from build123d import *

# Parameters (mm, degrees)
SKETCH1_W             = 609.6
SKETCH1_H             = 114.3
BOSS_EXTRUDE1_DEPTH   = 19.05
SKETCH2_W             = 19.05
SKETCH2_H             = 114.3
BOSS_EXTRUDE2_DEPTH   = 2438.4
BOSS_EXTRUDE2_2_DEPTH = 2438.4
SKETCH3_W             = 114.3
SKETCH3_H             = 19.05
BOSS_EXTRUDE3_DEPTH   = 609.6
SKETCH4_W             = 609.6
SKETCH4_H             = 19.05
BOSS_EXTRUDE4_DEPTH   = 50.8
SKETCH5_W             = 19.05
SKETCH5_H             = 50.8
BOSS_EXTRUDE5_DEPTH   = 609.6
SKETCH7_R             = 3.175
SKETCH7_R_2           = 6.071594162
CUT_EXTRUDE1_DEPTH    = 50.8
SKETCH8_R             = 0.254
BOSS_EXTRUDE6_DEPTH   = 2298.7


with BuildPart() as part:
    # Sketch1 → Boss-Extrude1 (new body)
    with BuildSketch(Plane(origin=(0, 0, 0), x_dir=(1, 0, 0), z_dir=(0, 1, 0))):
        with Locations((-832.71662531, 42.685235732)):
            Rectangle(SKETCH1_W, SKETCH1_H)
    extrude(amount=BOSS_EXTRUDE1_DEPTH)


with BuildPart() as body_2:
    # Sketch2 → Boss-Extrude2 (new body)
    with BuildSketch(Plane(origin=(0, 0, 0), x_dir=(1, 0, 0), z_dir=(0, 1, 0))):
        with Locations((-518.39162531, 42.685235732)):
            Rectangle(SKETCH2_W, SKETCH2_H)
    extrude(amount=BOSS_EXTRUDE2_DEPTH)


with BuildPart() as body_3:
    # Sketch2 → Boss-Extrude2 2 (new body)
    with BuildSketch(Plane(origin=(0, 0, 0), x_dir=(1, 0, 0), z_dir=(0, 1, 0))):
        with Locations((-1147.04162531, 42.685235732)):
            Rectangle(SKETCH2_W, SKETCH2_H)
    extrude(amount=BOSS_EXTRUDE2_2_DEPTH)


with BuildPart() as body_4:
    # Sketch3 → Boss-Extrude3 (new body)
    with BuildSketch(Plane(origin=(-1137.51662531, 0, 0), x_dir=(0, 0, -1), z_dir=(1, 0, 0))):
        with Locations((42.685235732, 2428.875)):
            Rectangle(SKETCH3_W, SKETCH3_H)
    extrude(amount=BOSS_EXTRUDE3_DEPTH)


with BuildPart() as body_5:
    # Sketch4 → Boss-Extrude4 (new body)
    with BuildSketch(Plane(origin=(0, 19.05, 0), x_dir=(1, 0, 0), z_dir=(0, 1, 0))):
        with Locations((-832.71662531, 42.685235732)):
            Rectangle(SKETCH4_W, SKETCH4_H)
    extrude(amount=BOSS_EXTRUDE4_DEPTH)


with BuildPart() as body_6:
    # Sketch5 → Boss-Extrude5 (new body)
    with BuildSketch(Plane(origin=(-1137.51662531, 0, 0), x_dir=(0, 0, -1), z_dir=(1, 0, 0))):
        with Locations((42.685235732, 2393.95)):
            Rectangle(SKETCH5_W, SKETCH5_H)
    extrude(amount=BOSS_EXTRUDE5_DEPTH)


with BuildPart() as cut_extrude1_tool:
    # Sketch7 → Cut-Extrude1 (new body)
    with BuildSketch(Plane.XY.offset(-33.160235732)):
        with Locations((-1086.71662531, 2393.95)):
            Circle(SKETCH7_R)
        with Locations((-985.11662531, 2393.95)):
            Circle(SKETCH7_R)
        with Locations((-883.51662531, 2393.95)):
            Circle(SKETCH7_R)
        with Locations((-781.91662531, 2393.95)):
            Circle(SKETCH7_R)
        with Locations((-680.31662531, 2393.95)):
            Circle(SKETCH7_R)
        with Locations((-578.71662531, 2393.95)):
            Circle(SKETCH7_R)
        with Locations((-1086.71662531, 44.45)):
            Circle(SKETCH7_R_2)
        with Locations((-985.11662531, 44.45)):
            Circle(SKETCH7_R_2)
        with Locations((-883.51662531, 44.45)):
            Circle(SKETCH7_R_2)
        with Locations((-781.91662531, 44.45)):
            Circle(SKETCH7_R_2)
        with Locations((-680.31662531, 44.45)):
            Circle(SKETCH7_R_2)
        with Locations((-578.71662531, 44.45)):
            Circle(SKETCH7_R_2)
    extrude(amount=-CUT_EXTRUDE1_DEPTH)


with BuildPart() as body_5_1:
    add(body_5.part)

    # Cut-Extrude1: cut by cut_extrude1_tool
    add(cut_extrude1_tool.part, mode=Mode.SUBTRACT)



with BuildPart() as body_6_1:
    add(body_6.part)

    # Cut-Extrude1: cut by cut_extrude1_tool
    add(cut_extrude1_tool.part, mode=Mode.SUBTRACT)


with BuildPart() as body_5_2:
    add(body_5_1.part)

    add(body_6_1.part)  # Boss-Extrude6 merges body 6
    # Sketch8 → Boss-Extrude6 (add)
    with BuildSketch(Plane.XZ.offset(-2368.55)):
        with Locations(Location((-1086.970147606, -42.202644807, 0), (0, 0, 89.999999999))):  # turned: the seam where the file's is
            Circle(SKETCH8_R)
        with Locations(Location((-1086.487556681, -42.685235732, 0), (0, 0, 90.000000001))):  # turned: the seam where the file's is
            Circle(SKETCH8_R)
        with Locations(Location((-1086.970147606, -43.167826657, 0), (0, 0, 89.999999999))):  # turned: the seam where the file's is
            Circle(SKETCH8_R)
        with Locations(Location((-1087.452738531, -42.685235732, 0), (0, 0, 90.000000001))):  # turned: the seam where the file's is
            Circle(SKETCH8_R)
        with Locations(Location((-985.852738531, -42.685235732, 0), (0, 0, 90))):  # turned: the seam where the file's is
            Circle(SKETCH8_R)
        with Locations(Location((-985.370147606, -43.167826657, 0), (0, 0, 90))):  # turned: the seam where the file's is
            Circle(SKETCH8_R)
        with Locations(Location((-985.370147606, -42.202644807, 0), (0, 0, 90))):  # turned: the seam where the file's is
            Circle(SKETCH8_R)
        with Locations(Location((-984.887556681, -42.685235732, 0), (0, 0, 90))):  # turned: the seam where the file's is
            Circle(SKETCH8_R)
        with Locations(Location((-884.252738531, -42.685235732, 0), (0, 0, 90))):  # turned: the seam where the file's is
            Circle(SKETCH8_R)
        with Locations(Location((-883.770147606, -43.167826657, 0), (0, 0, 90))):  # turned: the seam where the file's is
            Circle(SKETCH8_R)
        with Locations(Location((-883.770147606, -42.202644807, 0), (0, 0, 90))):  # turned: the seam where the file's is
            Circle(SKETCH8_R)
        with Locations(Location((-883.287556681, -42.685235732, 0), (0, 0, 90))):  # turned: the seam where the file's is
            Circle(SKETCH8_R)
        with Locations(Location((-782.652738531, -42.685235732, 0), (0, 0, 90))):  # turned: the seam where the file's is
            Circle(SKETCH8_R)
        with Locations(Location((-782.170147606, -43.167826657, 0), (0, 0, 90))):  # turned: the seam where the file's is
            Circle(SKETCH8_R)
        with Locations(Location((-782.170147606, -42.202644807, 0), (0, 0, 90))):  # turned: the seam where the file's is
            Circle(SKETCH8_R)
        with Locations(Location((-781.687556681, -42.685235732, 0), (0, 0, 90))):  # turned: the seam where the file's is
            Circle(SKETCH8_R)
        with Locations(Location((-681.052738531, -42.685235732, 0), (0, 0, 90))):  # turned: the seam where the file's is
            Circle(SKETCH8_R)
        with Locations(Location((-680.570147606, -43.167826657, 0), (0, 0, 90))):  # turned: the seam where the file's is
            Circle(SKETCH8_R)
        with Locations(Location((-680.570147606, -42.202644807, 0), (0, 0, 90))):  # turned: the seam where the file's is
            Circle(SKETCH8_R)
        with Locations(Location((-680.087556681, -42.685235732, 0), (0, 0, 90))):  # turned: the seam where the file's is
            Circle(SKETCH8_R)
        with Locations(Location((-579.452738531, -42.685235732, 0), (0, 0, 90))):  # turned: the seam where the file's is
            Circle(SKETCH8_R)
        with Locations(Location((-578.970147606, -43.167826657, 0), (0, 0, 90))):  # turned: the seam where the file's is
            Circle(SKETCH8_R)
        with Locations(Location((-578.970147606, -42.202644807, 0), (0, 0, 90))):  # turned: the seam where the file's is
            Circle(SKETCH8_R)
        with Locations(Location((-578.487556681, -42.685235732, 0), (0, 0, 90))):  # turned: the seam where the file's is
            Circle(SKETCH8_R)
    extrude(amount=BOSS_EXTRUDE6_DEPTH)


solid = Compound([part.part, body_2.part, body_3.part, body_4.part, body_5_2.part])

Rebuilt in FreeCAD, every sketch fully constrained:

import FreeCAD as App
import Part
import Sketcher
Q = App.Units.Quantity


def add_polygon(sketch, points):
    """Adds a closed chain of lines whose ends are joined by coincident constraints."""
    first, n = sketch.GeometryCount, len(points)
    for a, b in zip(points, points[1:] + points[:1]):
        sketch.addGeometry(Part.LineSegment(App.Vector(*a, 0), App.Vector(*b, 0)), False)
    for i in range(n):
        sketch.addConstraint(Sketcher.Constraint("Coincident", first + i, 2, first + (i + 1) % n, 1))

doc = App.newDocument("Part")
body = doc.addObject("PartDesign::Body", "Body")

# Sketch on XZ plane
sketch1 = body.newObject("Sketcher::SketchObject", "Sketch")
sketch1.AttachmentSupport = (doc.getObject("XZ_Plane"), [""])
sketch1.MapMode = "FlatFace"
add_polygon(sketch1, [(-1138, -100), (-1138, 14), (-528, 14), (-528, -100)])  # lines 0-3
sketch1.addConstraint(Sketcher.Constraint("Vertical", 0))
sketch1.addConstraint(Sketcher.Constraint("Horizontal", 1))
sketch1.addConstraint(Sketcher.Constraint("Vertical", 2))
sketch1.addConstraint(Sketcher.Constraint("Horizontal", 3))
sketch1.addConstraint(Sketcher.Constraint("DistanceX", 1, 1, 1, 2, Q("24 in")))
sketch1.addConstraint(Sketcher.Constraint("DistanceY", 0, 1, 0, 2, Q("4.5 in")))
sketch1.addConstraint(Sketcher.Constraint("DistanceX", 0, 2, -1, 1, Q("1137.516625 mm")))
sketch1.addConstraint(Sketcher.Constraint("DistanceY", -1, 1, 0, 2, Q("14.464764 mm")))
pad1 = body.newObject("PartDesign::Pad", "Pad")
pad1.Profile = sketch1
pad1.Length = Q("0.75 in")
pad1.Reversed = True
body2 = doc.addObject("PartDesign::Body", "Body001")

# Sketch on XZ plane
sketch2 = body2.newObject("Sketcher::SketchObject", "Sketch001")
sketch2.AttachmentSupport = (doc.getObject("XZ_Plane001"), [""])
sketch2.MapMode = "FlatFace"
add_polygon(sketch2, [(-528, -100), (-528, 14), (-509, 14), (-509, -100)])  # lines 0-3
sketch2.addConstraint(Sketcher.Constraint("Vertical", 0))
sketch2.addConstraint(Sketcher.Constraint("Horizontal", 1))
sketch2.addConstraint(Sketcher.Constraint("Vertical", 2))
sketch2.addConstraint(Sketcher.Constraint("Horizontal", 3))
sketch2.addConstraint(Sketcher.Constraint("DistanceY", 0, 1, 0, 2, Q("4.5 in")))
sketch2.addConstraint(Sketcher.Constraint("DistanceX", 1, 1, 1, 2, Q("0.75 in")))
sketch2.addConstraint(Sketcher.Constraint("DistanceX", 0, 2, -1, 1, Q("527.916625 mm")))
sketch2.addConstraint(Sketcher.Constraint("DistanceY", -1, 1, 0, 2, Q("14.464764 mm")))
pad2 = body2.newObject("PartDesign::Pad", "Pad001")
pad2.Profile = sketch2
pad2.Length = Q("96 in")
pad2.Reversed = True
body3 = doc.addObject("PartDesign::Body", "Body002")

# Sketch on XZ plane
sketch3 = body3.newObject("Sketcher::SketchObject", "Sketch002")
sketch3.AttachmentSupport = (doc.getObject("XZ_Plane002"), [""])
sketch3.MapMode = "FlatFace"
add_polygon(sketch3, [(-1157, -100), (-1157, 14), (-1138, 14), (-1138, -100)])  # lines 0-3
sketch3.addConstraint(Sketcher.Constraint("Vertical", 0))
sketch3.addConstraint(Sketcher.Constraint("Horizontal", 1))
sketch3.addConstraint(Sketcher.Constraint("Vertical", 2))
sketch3.addConstraint(Sketcher.Constraint("Horizontal", 3))
sketch3.addConstraint(Sketcher.Constraint("DistanceY", 0, 1, 0, 2, Q("4.5 in")))
sketch3.addConstraint(Sketcher.Constraint("DistanceX", 1, 1, 1, 2, Q("0.75 in")))
sketch3.addConstraint(Sketcher.Constraint("DistanceX", 0, 2, -1, 1, Q("1156.566625 mm")))
sketch3.addConstraint(Sketcher.Constraint("DistanceY", -1, 1, 0, 2, Q("14.464764 mm")))
pad3 = body3.newObject("PartDesign::Pad", "Pad002")
pad3.Profile = sketch3
pad3.Length = Q("96 in")
pad3.Reversed = True
body4 = doc.addObject("PartDesign::Body", "Body003")

# Sketch on YZ plane
sketch4 = body4.newObject("Sketcher::SketchObject", "Sketch003")
sketch4.AttachmentSupport = (doc.getObject("YZ_Plane003"), [""])
sketch4.MapMode = "FlatFace"
sketch4.AttachmentOffset = App.Placement(App.Vector(0, 0, -1137.516625), App.Rotation())
add_polygon(sketch4, [(2438, 14), (2419, 14), (2419, -100), (2438, -100)])  # lines 0-3
sketch4.addConstraint(Sketcher.Constraint("Horizontal", 0))
sketch4.addConstraint(Sketcher.Constraint("Vertical", 1))
sketch4.addConstraint(Sketcher.Constraint("Horizontal", 2))
sketch4.addConstraint(Sketcher.Constraint("Vertical", 3))
sketch4.addConstraint(Sketcher.Constraint("DistanceY", 1, 2, 1, 1, Q("4.5 in")))
sketch4.addConstraint(Sketcher.Constraint("DistanceX", -1, 1, 2, 2, Q("96 in")))
sketch4.addConstraint(Sketcher.Constraint("DistanceX", 0, 2, 0, 1, Q("0.75 in")))
sketch4.addConstraint(Sketcher.Constraint("DistanceY", -1, 1, 0, 2, Q("14.464764 mm")))
pad4 = body4.newObject("PartDesign::Pad", "Pad003")
pad4.Profile = sketch4
pad4.Length = Q("24 in")
body5 = doc.addObject("PartDesign::Body", "Body004")

# Sketch on XZ plane
sketch5 = body5.newObject("Sketcher::SketchObject", "Sketch004")
sketch5.AttachmentSupport = (doc.getObject("XZ_Plane004"), [""])
sketch5.MapMode = "FlatFace"
sketch5.AttachmentOffset = App.Placement(App.Vector(0, 0, -0.75 * 25.4), App.Rotation())
add_polygon(sketch5, [(-1138, -52), (-1138, -33), (-528, -33), (-528, -52)])  # lines 0-3
sketch5.addConstraint(Sketcher.Constraint("Vertical", 0))
sketch5.addConstraint(Sketcher.Constraint("Horizontal", 1))
sketch5.addConstraint(Sketcher.Constraint("Vertical", 2))
sketch5.addConstraint(Sketcher.Constraint("Horizontal", 3))
sketch5.addConstraint(Sketcher.Constraint("DistanceX", 1, 1, 1, 2, Q("24 in")))
sketch5.addConstraint(Sketcher.Constraint("DistanceY", 0, 1, 0, 2, Q("0.75 in")))
sketch5.addConstraint(Sketcher.Constraint("DistanceX", 0, 2, -1, 1, Q("1137.516625 mm")))
sketch5.addConstraint(Sketcher.Constraint("DistanceY", 0, 2, -1, 1, Q("33.160236 mm")))
pad5 = body5.newObject("PartDesign::Pad", "Pad004")
pad5.Profile = sketch5
pad5.Length = Q("2 in")
pad5.Reversed = True
body6 = doc.addObject("PartDesign::Body", "Body005")

# Sketch on YZ plane
sketch6 = body6.newObject("Sketcher::SketchObject", "Sketch005")
sketch6.AttachmentSupport = (doc.getObject("YZ_Plane005"), [""])
sketch6.MapMode = "FlatFace"
sketch6.AttachmentOffset = App.Placement(App.Vector(0, 0, -1137.516625), App.Rotation())
add_polygon(sketch6, [(2419, -33), (2369, -33), (2369, -52), (2419, -52)])  # lines 0-3
sketch6.addConstraint(Sketcher.Constraint("Horizontal", 0))
sketch6.addConstraint(Sketcher.Constraint("Vertical", 1))
sketch6.addConstraint(Sketcher.Constraint("Horizontal", 2))
sketch6.addConstraint(Sketcher.Constraint("Vertical", 3))
sketch6.addConstraint(Sketcher.Constraint("DistanceX", 0, 2, 0, 1, Q("2 in")))
sketch6.addConstraint(Sketcher.Constraint("DistanceY", 1, 2, 1, 1, Q("0.75 in")))
sketch6.addConstraint(Sketcher.Constraint("DistanceX", -1, 1, 0, 2, Q("93.25 in")))
sketch6.addConstraint(Sketcher.Constraint("DistanceY", 0, 2, -1, 1, Q("33.160236 mm")))
pad6 = body6.newObject("PartDesign::Pad", "Pad005")
pad6.Profile = sketch6
pad6.Length = Q("24 in")
body7 = doc.addObject("PartDesign::Body", "Body006")
body7.AllowCompound = True

# Sketch on XY plane
sketch7 = body7.newObject("Sketcher::SketchObject", "Sketch006")
sketch7.AttachmentSupport = (doc.getObject("XY_Plane006"), [""])
sketch7.MapMode = "FlatFace"
sketch7.AttachmentOffset = App.Placement(App.Vector(0, 0, -33.160236), App.Rotation())
sketch7.addGeometry(Part.Circle(App.Vector(-1086.7, 2393.9, 0), App.Vector(0, 0, 1), 3.2), False)
sketch7.addGeometry(Part.Circle(App.Vector(-985.1, 2393.9, 0), App.Vector(0, 0, 1), 3.2), False)
sketch7.addGeometry(Part.Circle(App.Vector(-883.5, 2393.9, 0), App.Vector(0, 0, 1), 3.2), False)
sketch7.addGeometry(Part.Circle(App.Vector(-781.9, 2393.9, 0), App.Vector(0, 0, 1), 3.2), False)
sketch7.addGeometry(Part.Circle(App.Vector(-680.3, 2393.9, 0), App.Vector(0, 0, 1), 3.2), False)
sketch7.addGeometry(Part.Circle(App.Vector(-578.7, 2393.9, 0), App.Vector(0, 0, 1), 3.2), False)
sketch7.addGeometry(Part.Circle(App.Vector(-1086.7, 44.5, 0), App.Vector(0, 0, 1), 6.1), False)
sketch7.addGeometry(Part.Circle(App.Vector(-985.1, 44.5, 0), App.Vector(0, 0, 1), 6.1), False)
sketch7.addGeometry(Part.Circle(App.Vector(-883.5, 44.5, 0), App.Vector(0, 0, 1), 6.1), False)
sketch7.addGeometry(Part.Circle(App.Vector(-781.9, 44.5, 0), App.Vector(0, 0, 1), 6.1), False)
sketch7.addGeometry(Part.Circle(App.Vector(-680.3, 44.5, 0), App.Vector(0, 0, 1), 6.1), False)
sketch7.addGeometry(Part.Circle(App.Vector(-578.7, 44.5, 0), App.Vector(0, 0, 1), 6.1), False)
sketch7.addConstraint(Sketcher.Constraint("Equal", 0, 1))
sketch7.addConstraint(Sketcher.Constraint("Equal", 1, 2))
sketch7.addConstraint(Sketcher.Constraint("Equal", 2, 3))
sketch7.addConstraint(Sketcher.Constraint("Equal", 3, 4))
sketch7.addConstraint(Sketcher.Constraint("Equal", 4, 5))
sketch7.addConstraint(Sketcher.Constraint("Equal", 6, 7))
sketch7.addConstraint(Sketcher.Constraint("Equal", 7, 8))
sketch7.addConstraint(Sketcher.Constraint("Equal", 8, 9))
sketch7.addConstraint(Sketcher.Constraint("Equal", 9, 10))
sketch7.addConstraint(Sketcher.Constraint("Equal", 10, 11))
sketch7.addConstraint(Sketcher.Constraint("Horizontal", 0, 3, 1, 3))
sketch7.addConstraint(Sketcher.Constraint("Horizontal", 1, 3, 2, 3))
sketch7.addConstraint(Sketcher.Constraint("Horizontal", 2, 3, 3, 3))
sketch7.addConstraint(Sketcher.Constraint("Horizontal", 3, 3, 4, 3))
sketch7.addConstraint(Sketcher.Constraint("Horizontal", 4, 3, 5, 3))
sketch7.addConstraint(Sketcher.Constraint("Horizontal", 6, 3, 7, 3))
sketch7.addConstraint(Sketcher.Constraint("Horizontal", 7, 3, 8, 3))
sketch7.addConstraint(Sketcher.Constraint("Horizontal", 8, 3, 9, 3))
sketch7.addConstraint(Sketcher.Constraint("Horizontal", 9, 3, 10, 3))
sketch7.addConstraint(Sketcher.Constraint("Horizontal", 10, 3, 11, 3))
sketch7.addConstraint(Sketcher.Constraint("Vertical", 0, 3, 6, 3))
sketch7.addConstraint(Sketcher.Constraint("Vertical", 1, 3, 7, 3))
sketch7.addConstraint(Sketcher.Constraint("Vertical", 2, 3, 8, 3))
sketch7.addConstraint(Sketcher.Constraint("Vertical", 3, 3, 9, 3))
sketch7.addConstraint(Sketcher.Constraint("Vertical", 4, 3, 10, 3))
sketch7.addConstraint(Sketcher.Constraint("Vertical", 5, 3, 11, 3))
sketch7.addConstraint(Sketcher.Constraint("Diameter", 0, Q("0.25 in")))
sketch7.addConstraint(Sketcher.Constraint("DistanceX", 0, 3, 1, 3, Q("4 in")))
sketch7.addConstraint(Sketcher.Constraint("DistanceX", 1, 3, 2, 3, Q("4 in")))
sketch7.addConstraint(Sketcher.Constraint("DistanceX", 2, 3, 3, 3, Q("4 in")))
sketch7.addConstraint(Sketcher.Constraint("DistanceX", 3, 3, 4, 3, Q("4 in")))
sketch7.addConstraint(Sketcher.Constraint("DistanceX", 4, 3, 5, 3, Q("4 in")))
sketch7.addConstraint(Sketcher.Constraint("DistanceY", 6, 3, 0, 3, Q("92.5 in")))
sketch7.addConstraint(Sketcher.Constraint("DistanceY", -1, 1, 0, 3, Q("94.25 in")))
sketch7.addConstraint(Sketcher.Constraint("Diameter", 6, Q("12.143188 mm")))
sketch7.addConstraint(Sketcher.Constraint("DistanceX", 0, 3, -1, 1, Q("1086.716625 mm")))
pad7 = body7.newObject("PartDesign::Pad", "Pad006")
pad7.Profile = sketch7
pad7.Length = Q("2 in")
pad7.Reversed = True
doc.recompute()

body8 = doc.addObject("PartDesign::Body", "Body007")
body8.BaseFeature = body7
boolean = body5.newObject("PartDesign::Boolean", "Boolean")
boolean.Type = "Cut"
boolean.addObjects([body8])
doc.recompute()

boolean2 = body6.newObject("PartDesign::Boolean", "Boolean001")
boolean2.Type = "Cut"
boolean2.addObjects([body7])
body5.AllowCompound = True
doc.recompute()

boolean3 = body5.newObject("PartDesign::Boolean", "Boolean002")
boolean3.Type = "Fuse"
boolean3.addObjects([body6])

# Sketch on XZ plane
sketch8 = body5.newObject("Sketcher::SketchObject", "Sketch007")
sketch8.AttachmentSupport = (doc.getObject("XZ_Plane004"), [""])
sketch8.MapMode = "FlatFace"
sketch8.AttachmentOffset = App.Placement(App.Vector(0, 0, -93.25 * 25.4), App.Rotation())
sketch8.addGeometry(Part.Circle(App.Vector(-1086.97, -42.2, 0), App.Vector(0, 0, 1), 0.25), False)
sketch8.addGeometry(Part.Circle(App.Vector(-1086.49, -42.69, 0), App.Vector(0, 0, 1), 0.25), False)
sketch8.addGeometry(Part.Circle(App.Vector(-1086.97, -43.17, 0), App.Vector(0, 0, 1), 0.25), False)
sketch8.addGeometry(Part.Circle(App.Vector(-1087.45, -42.69, 0), App.Vector(0, 0, 1), 0.25), False)
sketch8.addGeometry(Part.Circle(App.Vector(-985.85, -42.69, 0), App.Vector(0, 0, 1), 0.25), False)
sketch8.addGeometry(Part.Circle(App.Vector(-985.37, -43.17, 0), App.Vector(0, 0, 1), 0.25), False)
sketch8.addGeometry(Part.Circle(App.Vector(-985.37, -42.2, 0), App.Vector(0, 0, 1), 0.25), False)
sketch8.addGeometry(Part.Circle(App.Vector(-984.89, -42.69, 0), App.Vector(0, 0, 1), 0.25), False)
sketch8.addGeometry(Part.Circle(App.Vector(-884.25, -42.69, 0), App.Vector(0, 0, 1), 0.25), False)
sketch8.addGeometry(Part.Circle(App.Vector(-883.77, -43.17, 0), App.Vector(0, 0, 1), 0.25), False)
sketch8.addGeometry(Part.Circle(App.Vector(-883.77, -42.2, 0), App.Vector(0, 0, 1), 0.25), False)
sketch8.addGeometry(Part.Circle(App.Vector(-883.29, -42.69, 0), App.Vector(0, 0, 1), 0.25), False)
sketch8.addGeometry(Part.Circle(App.Vector(-782.65, -42.69, 0), App.Vector(0, 0, 1), 0.25), False)
sketch8.addGeometry(Part.Circle(App.Vector(-782.17, -43.17, 0), App.Vector(0, 0, 1), 0.25), False)
sketch8.addGeometry(Part.Circle(App.Vector(-782.17, -42.2, 0), App.Vector(0, 0, 1), 0.25), False)
sketch8.addGeometry(Part.Circle(App.Vector(-781.69, -42.69, 0), App.Vector(0, 0, 1), 0.25), False)
sketch8.addGeometry(Part.Circle(App.Vector(-681.05, -42.69, 0), App.Vector(0, 0, 1), 0.25), False)
sketch8.addGeometry(Part.Circle(App.Vector(-680.57, -43.17, 0), App.Vector(0, 0, 1), 0.25), False)
sketch8.addGeometry(Part.Circle(App.Vector(-680.57, -42.2, 0), App.Vector(0, 0, 1), 0.25), False)
sketch8.addGeometry(Part.Circle(App.Vector(-680.09, -42.69, 0), App.Vector(0, 0, 1), 0.25), False)
sketch8.addGeometry(Part.Circle(App.Vector(-579.45, -42.69, 0), App.Vector(0, 0, 1), 0.25), False)
sketch8.addGeometry(Part.Circle(App.Vector(-578.97, -43.17, 0), App.Vector(0, 0, 1), 0.25), False)
sketch8.addGeometry(Part.Circle(App.Vector(-578.97, -42.2, 0), App.Vector(0, 0, 1), 0.25), False)
sketch8.addGeometry(Part.Circle(App.Vector(-578.49, -42.69, 0), App.Vector(0, 0, 1), 0.25), False)
sketch8.addConstraint(Sketcher.Constraint("Equal", 0, 1))
sketch8.addConstraint(Sketcher.Constraint("Equal", 1, 2))
sketch8.addConstraint(Sketcher.Constraint("Equal", 2, 3))
sketch8.addConstraint(Sketcher.Constraint("Equal", 3, 4))
sketch8.addConstraint(Sketcher.Constraint("Equal", 4, 5))
sketch8.addConstraint(Sketcher.Constraint("Equal", 5, 6))
sketch8.addConstraint(Sketcher.Constraint("Equal", 6, 7))
sketch8.addConstraint(Sketcher.Constraint("Equal", 7, 8))
sketch8.addConstraint(Sketcher.Constraint("Equal", 8, 9))
sketch8.addConstraint(Sketcher.Constraint("Equal", 9, 10))
sketch8.addConstraint(Sketcher.Constraint("Equal", 10, 11))
sketch8.addConstraint(Sketcher.Constraint("Equal", 11, 12))
sketch8.addConstraint(Sketcher.Constraint("Equal", 12, 13))
sketch8.addConstraint(Sketcher.Constraint("Equal", 13, 14))
sketch8.addConstraint(Sketcher.Constraint("Equal", 14, 15))
sketch8.addConstraint(Sketcher.Constraint("Equal", 15, 16))
sketch8.addConstraint(Sketcher.Constraint("Equal", 16, 17))
sketch8.addConstraint(Sketcher.Constraint("Equal", 17, 18))
sketch8.addConstraint(Sketcher.Constraint("Equal", 18, 19))
sketch8.addConstraint(Sketcher.Constraint("Equal", 19, 20))
sketch8.addConstraint(Sketcher.Constraint("Equal", 20, 21))
sketch8.addConstraint(Sketcher.Constraint("Equal", 21, 22))
sketch8.addConstraint(Sketcher.Constraint("Equal", 22, 23))
sketch8.addConstraint(Sketcher.Constraint("Horizontal", 1, 3, 3, 3))
sketch8.addConstraint(Sketcher.Constraint("Horizontal", 3, 3, 4, 3))
sketch8.addConstraint(Sketcher.Constraint("Horizontal", 2, 3, 5, 3))
sketch8.addConstraint(Sketcher.Constraint("Horizontal", 0, 3, 6, 3))
sketch8.addConstraint(Sketcher.Constraint("Horizontal", 4, 3, 7, 3))
sketch8.addConstraint(Sketcher.Constraint("Horizontal", 7, 3, 8, 3))
sketch8.addConstraint(Sketcher.Constraint("Horizontal", 5, 3, 9, 3))
sketch8.addConstraint(Sketcher.Constraint("Horizontal", 6, 3, 10, 3))
sketch8.addConstraint(Sketcher.Constraint("Horizontal", 8, 3, 11, 3))
sketch8.addConstraint(Sketcher.Constraint("Horizontal", 11, 3, 12, 3))
sketch8.addConstraint(Sketcher.Constraint("Horizontal", 9, 3, 13, 3))
sketch8.addConstraint(Sketcher.Constraint("Horizontal", 10, 3, 14, 3))
sketch8.addConstraint(Sketcher.Constraint("Horizontal", 12, 3, 15, 3))
sketch8.addConstraint(Sketcher.Constraint("Horizontal", 15, 3, 16, 3))
sketch8.addConstraint(Sketcher.Constraint("Horizontal", 13, 3, 17, 3))
sketch8.addConstraint(Sketcher.Constraint("Horizontal", 14, 3, 18, 3))
sketch8.addConstraint(Sketcher.Constraint("Horizontal", 16, 3, 19, 3))
sketch8.addConstraint(Sketcher.Constraint("Horizontal", 19, 3, 20, 3))
sketch8.addConstraint(Sketcher.Constraint("Horizontal", 17, 3, 21, 3))
sketch8.addConstraint(Sketcher.Constraint("Horizontal", 18, 3, 22, 3))
sketch8.addConstraint(Sketcher.Constraint("Horizontal", 20, 3, 23, 3))
sketch8.addConstraint(Sketcher.Constraint("Vertical", 0, 3, 2, 3))
sketch8.addConstraint(Sketcher.Constraint("Vertical", 5, 3, 6, 3))
sketch8.addConstraint(Sketcher.Constraint("Vertical", 9, 3, 10, 3))
sketch8.addConstraint(Sketcher.Constraint("Vertical", 13, 3, 14, 3))
sketch8.addConstraint(Sketcher.Constraint("Vertical", 17, 3, 18, 3))
sketch8.addConstraint(Sketcher.Constraint("Vertical", 21, 3, 22, 3))
sketch8.addConstraint(Sketcher.Constraint("Diameter", 0, Q("0.02 in")))
sketch8.addConstraint(Sketcher.Constraint("DistanceX", 3, 3, 4, 3, Q("4 in")))
sketch8.addConstraint(Sketcher.Constraint("DistanceX", 2, 3, 5, 3, Q("4 in")))
sketch8.addConstraint(Sketcher.Constraint("DistanceX", 1, 3, 7, 3, Q("4 in")))
sketch8.addConstraint(Sketcher.Constraint("DistanceX", 4, 3, 8, 3, Q("4 in")))
sketch8.addConstraint(Sketcher.Constraint("DistanceX", 5, 3, 9, 3, Q("4 in")))
sketch8.addConstraint(Sketcher.Constraint("DistanceX", 7, 3, 11, 3, Q("4 in")))
sketch8.addConstraint(Sketcher.Constraint("DistanceX", 8, 3, 12, 3, Q("4 in")))
sketch8.addConstraint(Sketcher.Constraint("DistanceX", 9, 3, 13, 3, Q("4 in")))
sketch8.addConstraint(Sketcher.Constraint("DistanceX", 11, 3, 15, 3, Q("4 in")))
sketch8.addConstraint(Sketcher.Constraint("DistanceX", 12, 3, 16, 3, Q("4 in")))
sketch8.addConstraint(Sketcher.Constraint("DistanceX", 13, 3, 17, 3, Q("4 in")))
sketch8.addConstraint(Sketcher.Constraint("DistanceX", 15, 3, 19, 3, Q("4 in")))
sketch8.addConstraint(Sketcher.Constraint("DistanceX", 16, 3, 20, 3, Q("4 in")))
sketch8.addConstraint(Sketcher.Constraint("DistanceX", 17, 3, 21, 3, Q("4 in")))
sketch8.addConstraint(Sketcher.Constraint("DistanceX", 19, 3, 23, 3, Q("4 in")))
sketch8.addConstraint(Sketcher.Constraint("DistanceX", 3, 3, -1, 1, Q("42.8130999 in")))
sketch8.addConstraint(Sketcher.Constraint("DistanceX", 0, 3, 1, 3, Q("0.482591 mm")))
sketch8.addConstraint(Sketcher.Constraint("DistanceY", 1, 3, 0, 3, Q("0.482591 mm")))
sketch8.addConstraint(Sketcher.Constraint("DistanceY", 2, 3, 1, 3, Q("0.482591 mm")))
sketch8.addConstraint(Sketcher.Constraint("DistanceX", 3, 3, 2, 3, Q("0.482591 mm")))
sketch8.addConstraint(Sketcher.Constraint("DistanceY", 0, 3, -1, 1, Q("42.202645 mm")))
pad8 = body5.newObject("PartDesign::Pad", "Pad007")
pad8.Profile = sketch8
pad8.Length = Q("90.5 in")

doc.recompute()
